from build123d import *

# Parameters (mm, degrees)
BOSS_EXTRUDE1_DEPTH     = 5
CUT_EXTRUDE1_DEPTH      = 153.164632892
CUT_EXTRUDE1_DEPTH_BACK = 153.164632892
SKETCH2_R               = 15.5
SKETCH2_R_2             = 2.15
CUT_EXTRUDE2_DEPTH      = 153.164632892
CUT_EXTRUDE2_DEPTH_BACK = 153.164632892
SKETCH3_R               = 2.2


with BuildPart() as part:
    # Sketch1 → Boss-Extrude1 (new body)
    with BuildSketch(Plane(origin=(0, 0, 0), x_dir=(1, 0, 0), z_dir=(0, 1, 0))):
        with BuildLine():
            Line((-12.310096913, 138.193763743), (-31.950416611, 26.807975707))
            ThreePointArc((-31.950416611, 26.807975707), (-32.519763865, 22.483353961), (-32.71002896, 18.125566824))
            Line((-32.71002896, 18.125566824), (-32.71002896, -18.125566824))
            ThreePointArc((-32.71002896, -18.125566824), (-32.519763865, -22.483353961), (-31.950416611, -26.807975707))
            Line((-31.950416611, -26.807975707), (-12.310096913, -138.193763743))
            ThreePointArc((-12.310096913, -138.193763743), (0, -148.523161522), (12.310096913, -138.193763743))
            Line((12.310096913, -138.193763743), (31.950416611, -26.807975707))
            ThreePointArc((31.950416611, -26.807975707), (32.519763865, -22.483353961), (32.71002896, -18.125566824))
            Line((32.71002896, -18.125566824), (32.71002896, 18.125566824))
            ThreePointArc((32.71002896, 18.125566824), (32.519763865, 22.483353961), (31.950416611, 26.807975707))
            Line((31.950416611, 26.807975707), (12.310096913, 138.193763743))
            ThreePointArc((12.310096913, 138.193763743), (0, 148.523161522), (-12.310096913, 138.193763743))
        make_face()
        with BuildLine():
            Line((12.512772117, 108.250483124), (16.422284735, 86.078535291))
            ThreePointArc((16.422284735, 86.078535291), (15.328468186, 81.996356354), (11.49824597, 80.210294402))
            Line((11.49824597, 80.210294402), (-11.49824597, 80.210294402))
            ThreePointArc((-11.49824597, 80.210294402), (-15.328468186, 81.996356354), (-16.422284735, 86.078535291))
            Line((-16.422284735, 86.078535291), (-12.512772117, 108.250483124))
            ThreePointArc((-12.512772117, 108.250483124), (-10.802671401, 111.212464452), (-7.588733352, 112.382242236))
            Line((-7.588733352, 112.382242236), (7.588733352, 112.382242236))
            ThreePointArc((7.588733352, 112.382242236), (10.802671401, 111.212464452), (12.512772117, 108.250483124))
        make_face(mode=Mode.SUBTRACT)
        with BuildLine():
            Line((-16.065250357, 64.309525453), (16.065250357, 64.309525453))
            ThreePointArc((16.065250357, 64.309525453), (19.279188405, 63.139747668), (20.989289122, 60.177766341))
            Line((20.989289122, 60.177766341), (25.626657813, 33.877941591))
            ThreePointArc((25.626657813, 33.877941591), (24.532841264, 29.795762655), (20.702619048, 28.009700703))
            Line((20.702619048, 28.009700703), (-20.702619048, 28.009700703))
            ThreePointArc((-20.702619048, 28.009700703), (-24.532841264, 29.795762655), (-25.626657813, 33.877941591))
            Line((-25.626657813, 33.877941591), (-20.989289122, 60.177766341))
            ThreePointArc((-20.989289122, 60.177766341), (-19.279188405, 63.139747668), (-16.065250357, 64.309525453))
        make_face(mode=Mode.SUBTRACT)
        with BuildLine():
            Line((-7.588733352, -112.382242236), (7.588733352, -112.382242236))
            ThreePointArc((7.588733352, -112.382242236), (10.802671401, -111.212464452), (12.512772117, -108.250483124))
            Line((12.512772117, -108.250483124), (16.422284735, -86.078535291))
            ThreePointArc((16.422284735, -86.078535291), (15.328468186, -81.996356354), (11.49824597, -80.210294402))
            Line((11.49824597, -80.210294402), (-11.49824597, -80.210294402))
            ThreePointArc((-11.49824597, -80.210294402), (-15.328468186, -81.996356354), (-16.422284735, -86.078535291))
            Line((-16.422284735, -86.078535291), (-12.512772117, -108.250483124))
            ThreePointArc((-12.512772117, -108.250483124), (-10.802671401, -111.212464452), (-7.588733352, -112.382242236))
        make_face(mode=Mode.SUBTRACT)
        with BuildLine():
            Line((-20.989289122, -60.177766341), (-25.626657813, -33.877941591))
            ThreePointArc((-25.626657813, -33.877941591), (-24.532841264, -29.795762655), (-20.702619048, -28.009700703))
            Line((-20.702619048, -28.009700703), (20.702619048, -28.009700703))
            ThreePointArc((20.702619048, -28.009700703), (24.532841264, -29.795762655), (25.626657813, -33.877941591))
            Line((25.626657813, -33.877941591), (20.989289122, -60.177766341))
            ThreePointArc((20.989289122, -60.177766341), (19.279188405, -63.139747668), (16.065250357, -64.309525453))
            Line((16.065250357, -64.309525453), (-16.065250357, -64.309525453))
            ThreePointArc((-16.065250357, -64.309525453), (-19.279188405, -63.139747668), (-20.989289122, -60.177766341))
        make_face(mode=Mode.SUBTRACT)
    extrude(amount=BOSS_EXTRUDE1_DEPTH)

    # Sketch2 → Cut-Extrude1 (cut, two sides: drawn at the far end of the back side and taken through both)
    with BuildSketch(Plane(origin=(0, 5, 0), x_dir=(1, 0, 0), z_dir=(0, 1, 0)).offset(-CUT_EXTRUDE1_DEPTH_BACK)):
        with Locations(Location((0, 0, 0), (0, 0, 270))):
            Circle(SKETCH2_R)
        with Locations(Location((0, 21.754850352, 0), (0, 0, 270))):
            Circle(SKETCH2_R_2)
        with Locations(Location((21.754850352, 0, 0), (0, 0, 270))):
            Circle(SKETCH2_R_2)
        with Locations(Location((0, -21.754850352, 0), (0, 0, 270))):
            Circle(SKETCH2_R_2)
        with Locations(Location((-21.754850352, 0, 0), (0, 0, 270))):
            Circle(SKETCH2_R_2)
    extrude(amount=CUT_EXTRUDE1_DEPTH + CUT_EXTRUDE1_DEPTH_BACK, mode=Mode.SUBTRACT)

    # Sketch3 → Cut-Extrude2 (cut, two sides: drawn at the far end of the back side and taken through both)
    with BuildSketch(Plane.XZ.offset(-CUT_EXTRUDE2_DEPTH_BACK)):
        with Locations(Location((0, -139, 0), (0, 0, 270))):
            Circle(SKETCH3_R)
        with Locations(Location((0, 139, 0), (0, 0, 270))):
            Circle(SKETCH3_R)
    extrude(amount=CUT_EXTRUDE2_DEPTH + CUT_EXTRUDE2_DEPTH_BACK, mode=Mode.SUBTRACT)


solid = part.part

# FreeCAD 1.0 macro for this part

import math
import FreeCAD as App
import Part
import Sketcher

V = App.Vector
Q = App.Units.Quantity

doc = App.newDocument("Part")
params = doc.addObject("Spreadsheet::Sheet", "Params")
for row, (alias, value) in enumerate([
    ("sketch1_radius", "50 mm"),
    ("sketch1_radius2", "5 mm"),
    ("sketch1_radius3", "12.5 mm"),
    ("pad1_length", "5 mm"),
    ("sketch2_diameter", "31 mm"),
    ("sketch2_diameter2", "4.3 mm"),
    ("sketch3_diameter", "4.4 mm"),
], start=1):
    params.set(f"A{row}", alias)
    params.set(f"B{row}", "=" + value)
    params.setAlias(f"B{row}", alias)

body = doc.addObject("PartDesign::Body", "Body")

# Sketch on XZ plane
sketch1 = body.newObject("Sketcher::SketchObject", "Sketch")
sketch1.AttachmentSupport = (doc.getObject("XZ_Plane"), [""])
sketch1.MapMode = "FlatFace"
sketch1.addGeometry(Part.LineSegment(V(-12.310097, -138.193764, 0), V(-31.950417, -26.807976, 0)), False)
sketch1.addGeometry(Part.ArcOfCircle(Part.Circle(V(17.289971, -18.125567, 0), V(0, 0, 1), 50), math.radians(180), math.radians(190)), False)
sketch1.addGeometry(Part.LineSegment(V(-32.710029, -18.125567, 0), V(-32.710029, 18.125567, 0)), False)
sketch1.addGeometry(Part.ArcOfCircle(Part.Circle(V(17.289971, 18.125567, 0), V(0, 0, 1), 50), math.radians(170), math.radians(180)), False)
sketch1.addGeometry(Part.LineSegment(V(-31.950417, 26.807976, 0), V(-12.310097, 138.193764, 0)), False)
sketch1.addGeometry(Part.ArcOfCircle(Part.Circle(V(0, 136.023162, 0), V(0, 0, 1), 12.5), math.radians(10), math.radians(170)), False)
sketch1.addGeometry(Part.LineSegment(V(12.310097, 138.193764, 0), V(31.950417, 26.807976, 0)), False)
sketch1.addGeometry(Part.ArcOfCircle(Part.Circle(V(-17.289971, 18.125567, 0), V(0, 0, 1), 50), math.radians(0), math.radians(10)), False)
sketch1.addGeometry(Part.LineSegment(V(32.710029, 18.125567, 0), V(32.710029, -18.125567, 0)), False)
sketch1.addGeometry(Part.ArcOfCircle(Part.Circle(V(-17.289971, -18.125567, 0), V(0, 0, 1), 50), math.radians(-10), math.radians(0)), False)
sketch1.addGeometry(Part.LineSegment(V(31.950417, -26.807976, 0), V(12.310097, -138.193764, 0)), False)
sketch1.addGeometry(Part.ArcOfCircle(Part.Circle(V(0, -136.023162, 0), V(0, 0, 1), 12.5), math.radians(-170), math.radians(-10)), False)
sketch1.addGeometry(Part.LineSegment(V(7.588733, 112.382242, 0), V(-7.588733, 112.382242, 0)), False)
sketch1.addGeometry(Part.ArcOfCircle(Part.Circle(V(-7.588733, 107.382242, 0), V(0, 0, 1), 5), math.radians(90), math.radians(170)), False)
sketch1.addGeometry(Part.LineSegment(V(-12.512772, 108.250483, 0), V(-16.422285, 86.078535, 0)), False)
sketch1.addGeometry(Part.ArcOfCircle(Part.Circle(V(-11.498246, 85.210294, 0), V(0, 0, 1), 5), math.radians(170), math.radians(270)), False)
sketch1.addGeometry(Part.LineSegment(V(-11.498246, 80.210294, 0), V(11.498246, 80.210294, 0)), False)
sketch1.addGeometry(Part.ArcOfCircle(Part.Circle(V(11.498246, 85.210294, 0), V(0, 0, 1), 5), math.radians(-90), math.radians(10)), False)
sketch1.addGeometry(Part.LineSegment(V(16.422285, 86.078535, 0), V(12.512772, 108.250483, 0)), False)
sketch1.addGeometry(Part.ArcOfCircle(Part.Circle(V(7.588733, 107.382242, 0), V(0, 0, 1), 5), math.radians(10), math.radians(90)), False)
sketch1.addGeometry(Part.ArcOfCircle(Part.Circle(V(-16.06525, 59.309525, 0), V(0, 0, 1), 5), math.radians(90), math.radians(170)), False)
sketch1.addGeometry(Part.LineSegment(V(-20.989289, 60.177766, 0), V(-25.626658, 33.877942, 0)), False)
sketch1.addGeometry(Part.ArcOfCircle(Part.Circle(V(-20.702619, 33.009701, 0), V(0, 0, 1), 5), math.radians(170), math.radians(270)), False)
sketch1.addGeometry(Part.LineSegment(V(-20.702619, 28.009701, 0), V(20.702619, 28.009701, 0)), False)
sketch1.addGeometry(Part.ArcOfCircle(Part.Circle(V(20.702619, 33.009701, 0), V(0, 0, 1), 5), math.radians(-90), math.radians(10)), False)
sketch1.addGeometry(Part.LineSegment(V(25.626658, 33.877942, 0), V(20.989289, 60.177766, 0)), False)
sketch1.addGeometry(Part.ArcOfCircle(Part.Circle(V(16.06525, 59.309525, 0), V(0, 0, 1), 5), math.radians(10), math.radians(90)), False)
sketch1.addGeometry(Part.LineSegment(V(16.06525, 64.309525, 0), V(-16.06525, 64.309525, 0)), False)
sketch1.addGeometry(Part.ArcOfCircle(Part.Circle(V(-16.06525, -59.309525, 0), V(0, 0, 1), 5), math.radians(-170), math.radians(-90)), False)
sketch1.addGeometry(Part.LineSegment(V(-16.06525, -64.309525, 0), V(16.06525, -64.309525, 0)), False)
sketch1.addGeometry(Part.ArcOfCircle(Part.Circle(V(16.06525, -59.309525, 0), V(0, 0, 1), 5), math.radians(-90), math.radians(-10)), False)
sketch1.addGeometry(Part.LineSegment(V(20.989289, -60.177766, 0), V(25.626658, -33.877942, 0)), False)
sketch1.addGeometry(Part.ArcOfCircle(Part.Circle(V(20.702619, -33.009701, 0), V(0, 0, 1), 5), math.radians(-10), math.radians(90)), False)
sketch1.addGeometry(Part.LineSegment(V(20.702619, -28.009701, 0), V(-20.702619, -28.009701, 0)), False)
sketch1.addGeometry(Part.ArcOfCircle(Part.Circle(V(-20.702619, -33.009701, 0), V(0, 0, 1), 5), math.radians(90), math.radians(190)), False)
sketch1.addGeometry(Part.LineSegment(V(-25.626658, -33.877942, 0), V(-20.989289, -60.177766, 0)), False)
sketch1.addGeometry(Part.ArcOfCircle(Part.Circle(V(7.588733, -107.382242, 0), V(0, 0, 1), 5), math.radians(-90), math.radians(-10)), False)
sketch1.addGeometry(Part.LineSegment(V(12.512772, -108.250483, 0), V(16.422285, -86.078535, 0)), False)
sketch1.addGeometry(Part.ArcOfCircle(Part.Circle(V(11.498246, -85.210294, 0), V(0, 0, 1), 5), math.radians(-10), math.radians(90)), False)
sketch1.addGeometry(Part.LineSegment(V(11.498246, -80.210294, 0), V(-11.498246, -80.210294, 0)), False)
sketch1.addGeometry(Part.ArcOfCircle(Part.Circle(V(-11.498246, -85.210294, 0), V(0, 0, 1), 5), math.radians(90), math.radians(190)), False)
sketch1.addGeometry(Part.LineSegment(V(-16.422285, -86.078535, 0), V(-12.512772, -108.250483, 0)), False)
sketch1.addGeometry(Part.ArcOfCircle(Part.Circle(V(-7.588733, -107.382242, 0), V(0, 0, 1), 5), math.radians(-170), math.radians(-90)), False)
sketch1.addGeometry(Part.LineSegment(V(-7.588733, -112.382242, 0), V(7.588733, -112.382242, 0)), False)
sketch1.addConstraint(Sketcher.Constraint("Tangent", 0, 2, 1, 2))
sketch1.addConstraint(Sketcher.Constraint("Tangent", 1, 1, 2, 1))
sketch1.addConstraint(Sketcher.Constraint("Tangent", 2, 2, 3, 2))
sketch1.addConstraint(Sketcher.Constraint("Tangent", 3, 1, 4, 1))
sketch1.addConstraint(Sketcher.Constraint("Tangent", 4, 2, 5, 2))
sketch1.addConstraint(Sketcher.Constraint("Tangent", 5, 1, 6, 1))
sketch1.addConstraint(Sketcher.Constraint("Tangent", 6, 2, 7, 2))
sketch1.addConstraint(Sketcher.Constraint("Tangent", 7, 1, 8, 1))
sketch1.addConstraint(Sketcher.Constraint("Tangent", 8, 2, 9, 2))
sketch1.addConstraint(Sketcher.Constraint("Tangent", 9, 1, 10, 1))
sketch1.addConstraint(Sketcher.Constraint("Tangent", 10, 2, 11, 2))
sketch1.addConstraint(Sketcher.Constraint("Tangent", 11, 1, 0, 1))
sketch1.addConstraint(Sketcher.Constraint("Tangent", 12, 2, 13, 1))
sketch1.addConstraint(Sketcher.Constraint("Tangent", 13, 2, 14, 1))
sketch1.addConstraint(Sketcher.Constraint("Tangent", 14, 2, 15, 1))
sketch1.addConstraint(Sketcher.Constraint("Tangent", 15, 2, 16, 1))
sketch1.addConstraint(Sketcher.Constraint("Tangent", 16, 2, 17, 1))
sketch1.addConstraint(Sketcher.Constraint("Tangent", 17, 2, 18, 1))
sketch1.addConstraint(Sketcher.Constraint("Tangent", 18, 2, 19, 1))
sketch1.addConstraint(Sketcher.Constraint("Tangent", 19, 2, 12, 1))
sketch1.addConstraint(Sketcher.Constraint("Tangent", 20, 2, 21, 1))
sketch1.addConstraint(Sketcher.Constraint("Tangent", 21, 2, 22, 1))
sketch1.addConstraint(Sketcher.Constraint("Tangent", 22, 2, 23, 1))
sketch1.addConstraint(Sketcher.Constraint("Tangent", 23, 2, 24, 1))
sketch1.addConstraint(Sketcher.Constraint("Tangent", 24, 2, 25, 1))
sketch1.addConstraint(Sketcher.Constraint("Tangent", 25, 2, 26, 1))
sketch1.addConstraint(Sketcher.Constraint("Tangent", 26, 2, 27, 1))
sketch1.addConstraint(Sketcher.Constraint("Tangent", 27, 2, 20, 1))
sketch1.addConstraint(Sketcher.Constraint("Tangent", 28, 2, 29, 1))
sketch1.addConstraint(Sketcher.Constraint("Tangent", 29, 2, 30, 1))
sketch1.addConstraint(Sketcher.Constraint("Tangent", 30, 2, 31, 1))
sketch1.addConstraint(Sketcher.Constraint("Tangent", 31, 2, 32, 1))
sketch1.addConstraint(Sketcher.Constraint("Tangent", 32, 2, 33, 1))
sketch1.addConstraint(Sketcher.Constraint("Tangent", 33, 2, 34, 1))
sketch1.addConstraint(Sketcher.Constraint("Tangent", 34, 2, 35, 1))
sketch1.addConstraint(Sketcher.Constraint("Tangent", 35, 2, 28, 1))
sketch1.addConstraint(Sketcher.Constraint("Tangent", 36, 2, 37, 1))
sketch1.addConstraint(Sketcher.Constraint("Tangent", 37, 2, 38, 1))
sketch1.addConstraint(Sketcher.Constraint("Tangent", 38, 2, 39, 1))
sketch1.addConstraint(Sketcher.Constraint("Tangent", 39, 2, 40, 1))
sketch1.addConstraint(Sketcher.Constraint("Tangent", 40, 2, 41, 1))
sketch1.addConstraint(Sketcher.Constraint("Tangent", 41, 2, 42, 1))
sketch1.addConstraint(Sketcher.Constraint("Tangent", 42, 2, 43, 1))
sketch1.addConstraint(Sketcher.Constraint("Tangent", 43, 2, 36, 1))
sketch1.addConstraint(Sketcher.Constraint("Vertical", 2))
sketch1.addConstraint(Sketcher.Constraint("Vertical", 8))
sketch1.addConstraint(Sketcher.Constraint("Horizontal", 12))
sketch1.addConstraint(Sketcher.Constraint("Horizontal", 16))
sketch1.addConstraint(Sketcher.Constraint("Horizontal", 23))
sketch1.addConstraint(Sketcher.Constraint("Horizontal", 27))
sketch1.addConstraint(Sketcher.Constraint("Horizontal", 29))
sketch1.addConstraint(Sketcher.Constraint("Horizontal", 33))
sketch1.addConstraint(Sketcher.Constraint("Horizontal", 39))
sketch1.addConstraint(Sketcher.Constraint("Horizontal", 43))
sketch1.addConstraint(Sketcher.Constraint("Equal", 1, 3))
sketch1.addConstraint(Sketcher.Constraint("Equal", 3, 7))
sketch1.addConstraint(Sketcher.Constraint("Equal", 7, 9))
sketch1.addConstraint(Sketcher.Constraint("Equal", 5, 11))
sketch1.addConstraint(Sketcher.Constraint("Equal", 13, 15))
sketch1.addConstraint(Sketcher.Constraint("Equal", 15, 17))
sketch1.addConstraint(Sketcher.Constraint("Equal", 17, 19))
sketch1.addConstraint(Sketcher.Constraint("Equal", 19, 20))
sketch1.addConstraint(Sketcher.Constraint("Equal", 20, 22))
sketch1.addConstraint(Sketcher.Constraint("Equal", 22, 24))
sketch1.addConstraint(Sketcher.Constraint("Equal", 24, 26))
sketch1.addConstraint(Sketcher.Constraint("Equal", 26, 28))
sketch1.addConstraint(Sketcher.Constraint("Equal", 28, 30))
sketch1.addConstraint(Sketcher.Constraint("Equal", 30, 32))
sketch1.addConstraint(Sketcher.Constraint("Equal", 32, 34))
sketch1.addConstraint(Sketcher.Constraint("Equal", 34, 36))
sketch1.addConstraint(Sketcher.Constraint("Equal", 36, 38))
sketch1.addConstraint(Sketcher.Constraint("Equal", 38, 40))
sketch1.addConstraint(Sketcher.Constraint("Equal", 40, 42))
sketch1.addConstraint(Sketcher.Constraint("Symmetric", 1, 3, 7, 3, -1, 1))
sketch1.addConstraint(Sketcher.Constraint("Symmetric", 5, 3, 11, 3, -1, 1))
sketch1.addConstraint(Sketcher.Constraint("Symmetric", 26, 3, 28, 3, -1, 1))
sketch1.addConstraint(Sketcher.Constraint("Symmetric", 22, 3, 32, 3, -1, 1))
sketch1.addConstraint(Sketcher.Constraint("Symmetric", 13, 3, 36, 3, -1, 1))
sketch1.addConstraint(Sketcher.Constraint("Symmetric", 15, 3, 38, 3, -1, 1))
sketch1.addConstraint(Sketcher.Constraint("Symmetric", 17, 2, 40, 2, -1, 1))
sketch1.addConstraint(Sketcher.Constraint("Symmetric", 3, 1, 6, 2, -2))
sketch1.addConstraint(Sketcher.Constraint("Symmetric", 14, 2, 17, 2, -2))
sketch1.addConstraint(Sketcher.Constraint("Symmetric", 21, 2, 24, 2, -2))
sketch1.addConstraint(Sketcher.Constraint("Symmetric", 31, 2, 34, 2, -2))
sketch1.addConstraint(Sketcher.Constraint("Parallel", 4, 10))
sketch1.addConstraint(Sketcher.Constraint("Parallel", 10, 14))
sketch1.addConstraint(Sketcher.Constraint("Parallel", 14, 21))
sketch1.addConstraint(Sketcher.Constraint("Radius", 1, 50.0))
sketch1.addConstraint(Sketcher.Constraint("Radius", 13, 5.0))
sketch1.addConstraint(Sketcher.Constraint("Radius", 5, 12.5))
sketch1.addConstraint(Sketcher.Constraint("Angle", 0, Q("100 deg")))
sketch1.addConstraint(Sketcher.Constraint("DistanceX", 27, 2, 27, 1, 32.130501))
sketch1.addConstraint(Sketcher.Constraint("DistanceX", 16, 1, 16, 2, 22.996492))
sketch1.addConstraint(Sketcher.Constraint("DistanceX", 23, 1, 23, 2, 41.405238))
sketch1.addConstraint(Sketcher.Constraint("DistanceY", -1, 1, 22, 3, 33.009701))
sketch1.addConstraint(Sketcher.Constraint("DistanceX", 12, 2, 12, 1, 15.177467))
sketch1.addConstraint(Sketcher.Constraint("DistanceY", 2, 1, 2, 2, 36.251134))
sketch1.addConstraint(Sketcher.Constraint("DistanceX", -1, 1, 1, 3, 17.289971))
sketch1.addConstraint(Sketcher.Constraint("DistanceY", -1, 1, 13, 3, 107.382242))
sketch1.setExpression("Constraints[87]", "Params.sketch1_radius")
sketch1.setExpression("Constraints[88]", "Params.sketch1_radius2")
sketch1.setExpression("Constraints[89]", "Params.sketch1_radius3")
pad1 = body.newObject("PartDesign::Pad", "Pad")
pad1.Profile = sketch1
pad1.setExpression("Length", "Params.pad1_length")
pad1.Reversed = True

# Sketch on XZ plane
sketch2 = body.newObject("Sketcher::SketchObject", "Sketch001")
sketch2.AttachmentSupport = (doc.getObject("XZ_Plane"), [""])
sketch2.MapMode = "FlatFace"
sketch2.AttachmentOffset = App.Placement(V(0, 0, -5), App.Rotation())
sketch2.addGeometry(Part.Circle(V(0, 0, 0), V(0, 0, 1), 15.5), False)
sketch2.addGeometry(Part.Circle(V(0, -21.75485, 0), V(0, 0, 1), 2.15), False)
sketch2.addGeometry(Part.Circle(V(21.75485, 0, 0), V(0, 0, 1), 2.15), False)
sketch2.addGeometry(Part.Circle(V(0, 21.75485, 0), V(0, 0, 1), 2.15), False)
sketch2.addGeometry(Part.Circle(V(-21.75485, 0, 0), V(0, 0, 1), 2.15), False)
sketch2.addConstraint(Sketcher.Constraint("Coincident", 0, 3, -1, 1))
sketch2.addConstraint(Sketcher.Constraint("Equal", 1, 2))
sketch2.addConstraint(Sketcher.Constraint("Equal", 2, 3))
sketch2.addConstraint(Sketcher.Constraint("Equal", 3, 4))
sketch2.addConstraint(Sketcher.Constraint("Symmetric", 1, 3, 3, 3, -1, 1))
sketch2.addConstraint(Sketcher.Constraint("Symmetric", 2, 3, 4, 3, -1, 1))
sketch2.addConstraint(Sketcher.Constraint("PointOnObject", 1, 3, -2))
sketch2.addConstraint(Sketcher.Constraint("PointOnObject", 2, 3, -1))
sketch2.addConstraint(Sketcher.Constraint("Diameter", 0, 31.0))
sketch2.addConstraint(Sketcher.Constraint("Diameter", 1, 4.3))
sketch2.addConstraint(Sketcher.Constraint("DistanceY", 1, 3, 3, 3, 43.509701))
sketch2.addConstraint(Sketcher.Constraint("DistanceX", 4, 3, 2, 3, 43.509701))
sketch2.setExpression("Constraints[8]", "Params.sketch2_diameter")
sketch2.setExpression("Constraints[9]", "Params.sketch2_diameter2")
pocket1 = body.newObject("PartDesign::Pocket", "Pocket")
pocket1.Profile = sketch2
pocket1.Type = "ThroughAll"
pocket1.Midplane = True

# Sketch on XZ plane
sketch3 = body.newObject("Sketcher::SketchObject", "Sketch002")
sketch3.AttachmentSupport = (doc.getObject("XZ_Plane"), [""])
sketch3.MapMode = "FlatFace"
sketch3.addGeometry(Part.Circle(V(0, -139, 0), V(0, 0, 1), 2.2), False)
sketch3.addGeometry(Part.Circle(V(0, 139, 0), V(0, 0, 1), 2.2), False)
sketch3.addConstraint(Sketcher.Constraint("Equal", 0, 1))
sketch3.addConstraint(Sketcher.Constraint("Symmetric", 0, 3, 1, 3, -1, 1))
sketch3.addConstraint(Sketcher.Constraint("PointOnObject", 0, 3, -2))
sketch3.addConstraint(Sketcher.Constraint("Diameter", 0, 4.4))
sketch3.addConstraint(Sketcher.Constraint("DistanceY", 0, 3, -1, 1, 139.0))
sketch3.setExpression("Constraints[3]", "Params.sketch3_diameter")
pocket2 = body.newObject("PartDesign::Pocket", "Pocket001")
pocket2.Profile = sketch3
pocket2.Type = "ThroughAll"
pocket2.Midplane = True

doc.recompute()
